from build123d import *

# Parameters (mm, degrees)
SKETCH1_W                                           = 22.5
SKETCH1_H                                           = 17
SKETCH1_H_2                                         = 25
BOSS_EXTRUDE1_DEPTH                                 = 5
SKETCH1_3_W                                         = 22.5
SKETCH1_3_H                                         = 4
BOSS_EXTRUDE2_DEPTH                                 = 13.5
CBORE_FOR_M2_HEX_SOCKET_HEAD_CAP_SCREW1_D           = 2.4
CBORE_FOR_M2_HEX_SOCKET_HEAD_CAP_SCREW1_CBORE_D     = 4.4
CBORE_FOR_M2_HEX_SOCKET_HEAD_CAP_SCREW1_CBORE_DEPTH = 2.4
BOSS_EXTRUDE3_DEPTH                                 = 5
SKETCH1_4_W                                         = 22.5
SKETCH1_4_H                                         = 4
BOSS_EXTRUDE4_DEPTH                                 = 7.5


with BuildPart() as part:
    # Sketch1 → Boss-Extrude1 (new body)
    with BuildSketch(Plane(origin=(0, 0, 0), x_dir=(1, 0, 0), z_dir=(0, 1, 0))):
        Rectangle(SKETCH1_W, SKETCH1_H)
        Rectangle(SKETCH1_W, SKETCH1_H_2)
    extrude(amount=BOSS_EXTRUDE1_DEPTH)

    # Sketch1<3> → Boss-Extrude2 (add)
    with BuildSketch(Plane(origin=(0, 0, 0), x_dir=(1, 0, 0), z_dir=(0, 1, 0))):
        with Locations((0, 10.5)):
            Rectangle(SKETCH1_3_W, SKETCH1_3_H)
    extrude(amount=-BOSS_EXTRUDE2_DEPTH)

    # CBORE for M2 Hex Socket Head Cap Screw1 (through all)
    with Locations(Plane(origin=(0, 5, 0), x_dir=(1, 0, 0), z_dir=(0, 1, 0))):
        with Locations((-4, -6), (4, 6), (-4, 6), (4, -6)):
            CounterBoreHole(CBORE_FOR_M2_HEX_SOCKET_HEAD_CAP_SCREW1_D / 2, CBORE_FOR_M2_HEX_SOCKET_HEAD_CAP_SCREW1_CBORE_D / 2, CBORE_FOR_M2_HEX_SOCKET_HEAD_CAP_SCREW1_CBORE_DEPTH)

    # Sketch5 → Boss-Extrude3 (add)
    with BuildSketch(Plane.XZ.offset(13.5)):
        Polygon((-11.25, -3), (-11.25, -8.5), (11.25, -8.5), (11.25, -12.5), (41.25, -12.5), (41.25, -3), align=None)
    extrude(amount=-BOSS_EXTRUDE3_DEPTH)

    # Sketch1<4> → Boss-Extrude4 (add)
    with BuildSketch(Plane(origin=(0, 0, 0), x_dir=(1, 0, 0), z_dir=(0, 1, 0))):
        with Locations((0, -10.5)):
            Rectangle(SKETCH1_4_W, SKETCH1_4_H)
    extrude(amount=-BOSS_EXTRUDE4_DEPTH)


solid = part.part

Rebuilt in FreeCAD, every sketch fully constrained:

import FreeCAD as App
import Part
import Sketcher
Q = App.Units.Quantity


def add_polygon(sketch, points):
    """Adds a closed chain of lines whose ends are joined by coincident constraints."""
    first, n = sketch.GeometryCount, len(points)
    for a, b in zip(points, points[1:] + points[:1]):
        sketch.addGeometry(Part.LineSegment(App.Vector(*a, 0), App.Vector(*b, 0)), False)
    for i in range(n):
        sketch.addConstraint(Sketcher.Constraint("Coincident", first + i, 2, first + (i + 1) % n, 1))

doc = App.newDocument("Part")
body = doc.addObject("PartDesign::Body", "Body")

# Sketch on XZ plane
sketch1 = body.newObject("Sketcher::SketchObject", "Sketch")
sketch1.AttachmentSupport = (doc.getObject("XZ_Plane"), [""])
sketch1.MapMode = "FlatFace"
add_polygon(sketch1, [(-11.25, 12.5), (11.25, 12.5), (11.25, -12.5), (-11.25, -12.5)])  # lines 0-3
sketch1.addConstraint([
    Sketcher.Constraint("Horizontal", 0),
    Sketcher.Constraint("Vertical", 1),
    Sketcher.Constraint("Horizontal", 2),
    Sketcher.Constraint("Vertical", 3),
    Sketcher.Constraint("Symmetric", 0, 2, 2, 2, -1, 1),
    Sketcher.Constraint("DistanceY", 1, 2, 1, 1, Q("25 mm")),
    Sketcher.Constraint("DistanceX", 0, 1, 0, 2, Q("22.5 mm")),
])
pad1 = body.newObject("PartDesign::Pad", "Pad")
pad1.Profile = sketch1
pad1.Length = 5
pad1.Reversed = True

# Sketch on XZ plane
sketch2 = body.newObject("Sketcher::SketchObject", "Sketch001")
sketch2.AttachmentSupport = (doc.getObject("XZ_Plane"), [""])
sketch2.MapMode = "FlatFace"
add_polygon(sketch2, [(-11.25, -12.5), (-11.25, -8.5), (11.25, -8.5), (11.25, -12.5)])  # lines 0-3
sketch2.addConstraint([
    Sketcher.Constraint("Vertical", 0),
    Sketcher.Constraint("Horizontal", 1),
    Sketcher.Constraint("Vertical", 2),
    Sketcher.Constraint("Horizontal", 3),
    Sketcher.Constraint("DistanceY", 0, 1, 0, 2, Q("4 mm")),
    Sketcher.Constraint("DistanceX", 1, 1, 1, 2, Q("22.5 mm")),
    Sketcher.Constraint("DistanceY", 0, 2, -1, 1, Q("8.5 mm")),
    Sketcher.Constraint("DistanceX", 0, 2, -1, 1, Q("11.25 mm")),
])
pad2 = body.newObject("PartDesign::Pad", "Pad001")
pad2.Profile = sketch2
pad2.Length = 13.5

# Sketch on XZ plane
sketch3 = body.newObject("Sketcher::SketchObject", "Sketch002")
sketch3.AttachmentSupport = (doc.getObject("XZ_Plane"), [""])
sketch3.MapMode = "FlatFace"
sketch3.AttachmentOffset = App.Placement(App.Vector(0, 0, -5), App.Rotation())
sketch3.addGeometry([
    Part.Circle(App.Vector(-4, 6, 0), App.Vector(0, 0, 1), 1.2),
    Part.Circle(App.Vector(4, -6, 0), App.Vector(0, 0, 1), 1.2),
    Part.Circle(App.Vector(-4, -6, 0), App.Vector(0, 0, 1), 1.2),
    Part.Circle(App.Vector(4, 6, 0), App.Vector(0, 0, 1), 1.2),
], False)
sketch3.addConstraint([
    Sketcher.Constraint("Equal", 0, 1),
    Sketcher.Constraint("Equal", 1, 2),
    Sketcher.Constraint("Equal", 2, 3),
    Sketcher.Constraint("Symmetric", 0, 3, 1, 3, -1, 1),
    Sketcher.Constraint("Symmetric", 2, 3, 3, 3, -1, 1),
    Sketcher.Constraint("Symmetric", 1, 3, 2, 3, -2),
    Sketcher.Constraint("Diameter", 0, Q("2.4 mm")),
    Sketcher.Constraint("DistanceX", 0, 3, -1, 1, Q("4 mm")),
    Sketcher.Constraint("DistanceY", -1, 1, 0, 3, Q("6 mm")),
])
doc.recompute()
hole = body.newObject("PartDesign::Hole", "Hole")
hole.Profile = sketch3
hole.ThreadType = "None"
hole.Diameter = 2.4
hole.DepthType = "ThroughAll"
hole.HoleCutType = "Counterbore"
hole.HoleCutDiameter = 4.4
hole.HoleCutDepth = 2.4
hole.Reversed = True

# Sketch on XZ plane
sketch4 = body.newObject("Sketcher::SketchObject", "Sketch003")
sketch4.AttachmentSupport = (doc.getObject("XZ_Plane"), [""])
sketch4.MapMode = "FlatFace"
sketch4.AttachmentOffset = App.Placement(App.Vector(0, 0, 13.5), App.Rotation())
add_polygon(sketch4, [(-11.25, -3), (-11.25, -8.5), (11.25, -8.5), (11.25, -12.5), (41.25, -12.5), (41.25, -3)])  # lines 0-5
sketch4.addConstraint([
    Sketcher.Constraint("Vertical", 0),
    Sketcher.Constraint("Horizontal", 1),
    Sketcher.Constraint("Vertical", 2),
    Sketcher.Constraint("Horizontal", 3),
    Sketcher.Constraint("Vertical", 4),
    Sketcher.Constraint("Horizontal", 5),
    Sketcher.Constraint("DistanceX", 3, 1, 3, 2, Q("30 mm")),
    Sketcher.Constraint("DistanceY", 2, 2, 2, 1, Q("4 mm")),
    Sketcher.Constraint("DistanceX", 1, 1, 1, 2, Q("22.5 mm")),
    Sketcher.Constraint("DistanceY", 0, 2, 0, 1, Q("5.5 mm")),
    Sketcher.Constraint("DistanceY", 4, 2, -1, 1, Q("3 mm")),
    Sketcher.Constraint("DistanceX", 0, 2, -1, 1, Q("11.25 mm")),
])
pad3 = body.newObject("PartDesign::Pad", "Pad002")
pad3.Profile = sketch4
pad3.Length = 5
pad3.Reversed = True

# Sketch on XZ plane
sketch5 = body.newObject("Sketcher::SketchObject", "Sketch004")
sketch5.AttachmentSupport = (doc.getObject("XZ_Plane"), [""])
sketch5.MapMode = "FlatFace"
add_polygon(sketch5, [(-11.25, 8.5), (-11.25, 12.5), (11.25, 12.5), (11.25, 8.5)])  # lines 0-3
sketch5.addConstraint([
    Sketcher.Constraint("Vertical", 0),
    Sketcher.Constraint("Horizontal", 1),
    Sketcher.Constraint("Vertical", 2),
    Sketcher.Constraint("Horizontal", 3),
    Sketcher.Constraint("DistanceY", 0, 1, 0, 2, Q("4 mm")),
    Sketcher.Constraint("DistanceX", 1, 1, 1, 2, Q("22.5 mm")),
    Sketcher.Constraint("DistanceY", -1, 1, 0, 2, Q("12.5 mm")),
    Sketcher.Constraint("DistanceX", 0, 2, -1, 1, Q("11.25 mm")),
])
pad4 = body.newObject("PartDesign::Pad", "Pad003")
pad4.Profile = sketch5
pad4.Length = 7.5

doc.recompute()
